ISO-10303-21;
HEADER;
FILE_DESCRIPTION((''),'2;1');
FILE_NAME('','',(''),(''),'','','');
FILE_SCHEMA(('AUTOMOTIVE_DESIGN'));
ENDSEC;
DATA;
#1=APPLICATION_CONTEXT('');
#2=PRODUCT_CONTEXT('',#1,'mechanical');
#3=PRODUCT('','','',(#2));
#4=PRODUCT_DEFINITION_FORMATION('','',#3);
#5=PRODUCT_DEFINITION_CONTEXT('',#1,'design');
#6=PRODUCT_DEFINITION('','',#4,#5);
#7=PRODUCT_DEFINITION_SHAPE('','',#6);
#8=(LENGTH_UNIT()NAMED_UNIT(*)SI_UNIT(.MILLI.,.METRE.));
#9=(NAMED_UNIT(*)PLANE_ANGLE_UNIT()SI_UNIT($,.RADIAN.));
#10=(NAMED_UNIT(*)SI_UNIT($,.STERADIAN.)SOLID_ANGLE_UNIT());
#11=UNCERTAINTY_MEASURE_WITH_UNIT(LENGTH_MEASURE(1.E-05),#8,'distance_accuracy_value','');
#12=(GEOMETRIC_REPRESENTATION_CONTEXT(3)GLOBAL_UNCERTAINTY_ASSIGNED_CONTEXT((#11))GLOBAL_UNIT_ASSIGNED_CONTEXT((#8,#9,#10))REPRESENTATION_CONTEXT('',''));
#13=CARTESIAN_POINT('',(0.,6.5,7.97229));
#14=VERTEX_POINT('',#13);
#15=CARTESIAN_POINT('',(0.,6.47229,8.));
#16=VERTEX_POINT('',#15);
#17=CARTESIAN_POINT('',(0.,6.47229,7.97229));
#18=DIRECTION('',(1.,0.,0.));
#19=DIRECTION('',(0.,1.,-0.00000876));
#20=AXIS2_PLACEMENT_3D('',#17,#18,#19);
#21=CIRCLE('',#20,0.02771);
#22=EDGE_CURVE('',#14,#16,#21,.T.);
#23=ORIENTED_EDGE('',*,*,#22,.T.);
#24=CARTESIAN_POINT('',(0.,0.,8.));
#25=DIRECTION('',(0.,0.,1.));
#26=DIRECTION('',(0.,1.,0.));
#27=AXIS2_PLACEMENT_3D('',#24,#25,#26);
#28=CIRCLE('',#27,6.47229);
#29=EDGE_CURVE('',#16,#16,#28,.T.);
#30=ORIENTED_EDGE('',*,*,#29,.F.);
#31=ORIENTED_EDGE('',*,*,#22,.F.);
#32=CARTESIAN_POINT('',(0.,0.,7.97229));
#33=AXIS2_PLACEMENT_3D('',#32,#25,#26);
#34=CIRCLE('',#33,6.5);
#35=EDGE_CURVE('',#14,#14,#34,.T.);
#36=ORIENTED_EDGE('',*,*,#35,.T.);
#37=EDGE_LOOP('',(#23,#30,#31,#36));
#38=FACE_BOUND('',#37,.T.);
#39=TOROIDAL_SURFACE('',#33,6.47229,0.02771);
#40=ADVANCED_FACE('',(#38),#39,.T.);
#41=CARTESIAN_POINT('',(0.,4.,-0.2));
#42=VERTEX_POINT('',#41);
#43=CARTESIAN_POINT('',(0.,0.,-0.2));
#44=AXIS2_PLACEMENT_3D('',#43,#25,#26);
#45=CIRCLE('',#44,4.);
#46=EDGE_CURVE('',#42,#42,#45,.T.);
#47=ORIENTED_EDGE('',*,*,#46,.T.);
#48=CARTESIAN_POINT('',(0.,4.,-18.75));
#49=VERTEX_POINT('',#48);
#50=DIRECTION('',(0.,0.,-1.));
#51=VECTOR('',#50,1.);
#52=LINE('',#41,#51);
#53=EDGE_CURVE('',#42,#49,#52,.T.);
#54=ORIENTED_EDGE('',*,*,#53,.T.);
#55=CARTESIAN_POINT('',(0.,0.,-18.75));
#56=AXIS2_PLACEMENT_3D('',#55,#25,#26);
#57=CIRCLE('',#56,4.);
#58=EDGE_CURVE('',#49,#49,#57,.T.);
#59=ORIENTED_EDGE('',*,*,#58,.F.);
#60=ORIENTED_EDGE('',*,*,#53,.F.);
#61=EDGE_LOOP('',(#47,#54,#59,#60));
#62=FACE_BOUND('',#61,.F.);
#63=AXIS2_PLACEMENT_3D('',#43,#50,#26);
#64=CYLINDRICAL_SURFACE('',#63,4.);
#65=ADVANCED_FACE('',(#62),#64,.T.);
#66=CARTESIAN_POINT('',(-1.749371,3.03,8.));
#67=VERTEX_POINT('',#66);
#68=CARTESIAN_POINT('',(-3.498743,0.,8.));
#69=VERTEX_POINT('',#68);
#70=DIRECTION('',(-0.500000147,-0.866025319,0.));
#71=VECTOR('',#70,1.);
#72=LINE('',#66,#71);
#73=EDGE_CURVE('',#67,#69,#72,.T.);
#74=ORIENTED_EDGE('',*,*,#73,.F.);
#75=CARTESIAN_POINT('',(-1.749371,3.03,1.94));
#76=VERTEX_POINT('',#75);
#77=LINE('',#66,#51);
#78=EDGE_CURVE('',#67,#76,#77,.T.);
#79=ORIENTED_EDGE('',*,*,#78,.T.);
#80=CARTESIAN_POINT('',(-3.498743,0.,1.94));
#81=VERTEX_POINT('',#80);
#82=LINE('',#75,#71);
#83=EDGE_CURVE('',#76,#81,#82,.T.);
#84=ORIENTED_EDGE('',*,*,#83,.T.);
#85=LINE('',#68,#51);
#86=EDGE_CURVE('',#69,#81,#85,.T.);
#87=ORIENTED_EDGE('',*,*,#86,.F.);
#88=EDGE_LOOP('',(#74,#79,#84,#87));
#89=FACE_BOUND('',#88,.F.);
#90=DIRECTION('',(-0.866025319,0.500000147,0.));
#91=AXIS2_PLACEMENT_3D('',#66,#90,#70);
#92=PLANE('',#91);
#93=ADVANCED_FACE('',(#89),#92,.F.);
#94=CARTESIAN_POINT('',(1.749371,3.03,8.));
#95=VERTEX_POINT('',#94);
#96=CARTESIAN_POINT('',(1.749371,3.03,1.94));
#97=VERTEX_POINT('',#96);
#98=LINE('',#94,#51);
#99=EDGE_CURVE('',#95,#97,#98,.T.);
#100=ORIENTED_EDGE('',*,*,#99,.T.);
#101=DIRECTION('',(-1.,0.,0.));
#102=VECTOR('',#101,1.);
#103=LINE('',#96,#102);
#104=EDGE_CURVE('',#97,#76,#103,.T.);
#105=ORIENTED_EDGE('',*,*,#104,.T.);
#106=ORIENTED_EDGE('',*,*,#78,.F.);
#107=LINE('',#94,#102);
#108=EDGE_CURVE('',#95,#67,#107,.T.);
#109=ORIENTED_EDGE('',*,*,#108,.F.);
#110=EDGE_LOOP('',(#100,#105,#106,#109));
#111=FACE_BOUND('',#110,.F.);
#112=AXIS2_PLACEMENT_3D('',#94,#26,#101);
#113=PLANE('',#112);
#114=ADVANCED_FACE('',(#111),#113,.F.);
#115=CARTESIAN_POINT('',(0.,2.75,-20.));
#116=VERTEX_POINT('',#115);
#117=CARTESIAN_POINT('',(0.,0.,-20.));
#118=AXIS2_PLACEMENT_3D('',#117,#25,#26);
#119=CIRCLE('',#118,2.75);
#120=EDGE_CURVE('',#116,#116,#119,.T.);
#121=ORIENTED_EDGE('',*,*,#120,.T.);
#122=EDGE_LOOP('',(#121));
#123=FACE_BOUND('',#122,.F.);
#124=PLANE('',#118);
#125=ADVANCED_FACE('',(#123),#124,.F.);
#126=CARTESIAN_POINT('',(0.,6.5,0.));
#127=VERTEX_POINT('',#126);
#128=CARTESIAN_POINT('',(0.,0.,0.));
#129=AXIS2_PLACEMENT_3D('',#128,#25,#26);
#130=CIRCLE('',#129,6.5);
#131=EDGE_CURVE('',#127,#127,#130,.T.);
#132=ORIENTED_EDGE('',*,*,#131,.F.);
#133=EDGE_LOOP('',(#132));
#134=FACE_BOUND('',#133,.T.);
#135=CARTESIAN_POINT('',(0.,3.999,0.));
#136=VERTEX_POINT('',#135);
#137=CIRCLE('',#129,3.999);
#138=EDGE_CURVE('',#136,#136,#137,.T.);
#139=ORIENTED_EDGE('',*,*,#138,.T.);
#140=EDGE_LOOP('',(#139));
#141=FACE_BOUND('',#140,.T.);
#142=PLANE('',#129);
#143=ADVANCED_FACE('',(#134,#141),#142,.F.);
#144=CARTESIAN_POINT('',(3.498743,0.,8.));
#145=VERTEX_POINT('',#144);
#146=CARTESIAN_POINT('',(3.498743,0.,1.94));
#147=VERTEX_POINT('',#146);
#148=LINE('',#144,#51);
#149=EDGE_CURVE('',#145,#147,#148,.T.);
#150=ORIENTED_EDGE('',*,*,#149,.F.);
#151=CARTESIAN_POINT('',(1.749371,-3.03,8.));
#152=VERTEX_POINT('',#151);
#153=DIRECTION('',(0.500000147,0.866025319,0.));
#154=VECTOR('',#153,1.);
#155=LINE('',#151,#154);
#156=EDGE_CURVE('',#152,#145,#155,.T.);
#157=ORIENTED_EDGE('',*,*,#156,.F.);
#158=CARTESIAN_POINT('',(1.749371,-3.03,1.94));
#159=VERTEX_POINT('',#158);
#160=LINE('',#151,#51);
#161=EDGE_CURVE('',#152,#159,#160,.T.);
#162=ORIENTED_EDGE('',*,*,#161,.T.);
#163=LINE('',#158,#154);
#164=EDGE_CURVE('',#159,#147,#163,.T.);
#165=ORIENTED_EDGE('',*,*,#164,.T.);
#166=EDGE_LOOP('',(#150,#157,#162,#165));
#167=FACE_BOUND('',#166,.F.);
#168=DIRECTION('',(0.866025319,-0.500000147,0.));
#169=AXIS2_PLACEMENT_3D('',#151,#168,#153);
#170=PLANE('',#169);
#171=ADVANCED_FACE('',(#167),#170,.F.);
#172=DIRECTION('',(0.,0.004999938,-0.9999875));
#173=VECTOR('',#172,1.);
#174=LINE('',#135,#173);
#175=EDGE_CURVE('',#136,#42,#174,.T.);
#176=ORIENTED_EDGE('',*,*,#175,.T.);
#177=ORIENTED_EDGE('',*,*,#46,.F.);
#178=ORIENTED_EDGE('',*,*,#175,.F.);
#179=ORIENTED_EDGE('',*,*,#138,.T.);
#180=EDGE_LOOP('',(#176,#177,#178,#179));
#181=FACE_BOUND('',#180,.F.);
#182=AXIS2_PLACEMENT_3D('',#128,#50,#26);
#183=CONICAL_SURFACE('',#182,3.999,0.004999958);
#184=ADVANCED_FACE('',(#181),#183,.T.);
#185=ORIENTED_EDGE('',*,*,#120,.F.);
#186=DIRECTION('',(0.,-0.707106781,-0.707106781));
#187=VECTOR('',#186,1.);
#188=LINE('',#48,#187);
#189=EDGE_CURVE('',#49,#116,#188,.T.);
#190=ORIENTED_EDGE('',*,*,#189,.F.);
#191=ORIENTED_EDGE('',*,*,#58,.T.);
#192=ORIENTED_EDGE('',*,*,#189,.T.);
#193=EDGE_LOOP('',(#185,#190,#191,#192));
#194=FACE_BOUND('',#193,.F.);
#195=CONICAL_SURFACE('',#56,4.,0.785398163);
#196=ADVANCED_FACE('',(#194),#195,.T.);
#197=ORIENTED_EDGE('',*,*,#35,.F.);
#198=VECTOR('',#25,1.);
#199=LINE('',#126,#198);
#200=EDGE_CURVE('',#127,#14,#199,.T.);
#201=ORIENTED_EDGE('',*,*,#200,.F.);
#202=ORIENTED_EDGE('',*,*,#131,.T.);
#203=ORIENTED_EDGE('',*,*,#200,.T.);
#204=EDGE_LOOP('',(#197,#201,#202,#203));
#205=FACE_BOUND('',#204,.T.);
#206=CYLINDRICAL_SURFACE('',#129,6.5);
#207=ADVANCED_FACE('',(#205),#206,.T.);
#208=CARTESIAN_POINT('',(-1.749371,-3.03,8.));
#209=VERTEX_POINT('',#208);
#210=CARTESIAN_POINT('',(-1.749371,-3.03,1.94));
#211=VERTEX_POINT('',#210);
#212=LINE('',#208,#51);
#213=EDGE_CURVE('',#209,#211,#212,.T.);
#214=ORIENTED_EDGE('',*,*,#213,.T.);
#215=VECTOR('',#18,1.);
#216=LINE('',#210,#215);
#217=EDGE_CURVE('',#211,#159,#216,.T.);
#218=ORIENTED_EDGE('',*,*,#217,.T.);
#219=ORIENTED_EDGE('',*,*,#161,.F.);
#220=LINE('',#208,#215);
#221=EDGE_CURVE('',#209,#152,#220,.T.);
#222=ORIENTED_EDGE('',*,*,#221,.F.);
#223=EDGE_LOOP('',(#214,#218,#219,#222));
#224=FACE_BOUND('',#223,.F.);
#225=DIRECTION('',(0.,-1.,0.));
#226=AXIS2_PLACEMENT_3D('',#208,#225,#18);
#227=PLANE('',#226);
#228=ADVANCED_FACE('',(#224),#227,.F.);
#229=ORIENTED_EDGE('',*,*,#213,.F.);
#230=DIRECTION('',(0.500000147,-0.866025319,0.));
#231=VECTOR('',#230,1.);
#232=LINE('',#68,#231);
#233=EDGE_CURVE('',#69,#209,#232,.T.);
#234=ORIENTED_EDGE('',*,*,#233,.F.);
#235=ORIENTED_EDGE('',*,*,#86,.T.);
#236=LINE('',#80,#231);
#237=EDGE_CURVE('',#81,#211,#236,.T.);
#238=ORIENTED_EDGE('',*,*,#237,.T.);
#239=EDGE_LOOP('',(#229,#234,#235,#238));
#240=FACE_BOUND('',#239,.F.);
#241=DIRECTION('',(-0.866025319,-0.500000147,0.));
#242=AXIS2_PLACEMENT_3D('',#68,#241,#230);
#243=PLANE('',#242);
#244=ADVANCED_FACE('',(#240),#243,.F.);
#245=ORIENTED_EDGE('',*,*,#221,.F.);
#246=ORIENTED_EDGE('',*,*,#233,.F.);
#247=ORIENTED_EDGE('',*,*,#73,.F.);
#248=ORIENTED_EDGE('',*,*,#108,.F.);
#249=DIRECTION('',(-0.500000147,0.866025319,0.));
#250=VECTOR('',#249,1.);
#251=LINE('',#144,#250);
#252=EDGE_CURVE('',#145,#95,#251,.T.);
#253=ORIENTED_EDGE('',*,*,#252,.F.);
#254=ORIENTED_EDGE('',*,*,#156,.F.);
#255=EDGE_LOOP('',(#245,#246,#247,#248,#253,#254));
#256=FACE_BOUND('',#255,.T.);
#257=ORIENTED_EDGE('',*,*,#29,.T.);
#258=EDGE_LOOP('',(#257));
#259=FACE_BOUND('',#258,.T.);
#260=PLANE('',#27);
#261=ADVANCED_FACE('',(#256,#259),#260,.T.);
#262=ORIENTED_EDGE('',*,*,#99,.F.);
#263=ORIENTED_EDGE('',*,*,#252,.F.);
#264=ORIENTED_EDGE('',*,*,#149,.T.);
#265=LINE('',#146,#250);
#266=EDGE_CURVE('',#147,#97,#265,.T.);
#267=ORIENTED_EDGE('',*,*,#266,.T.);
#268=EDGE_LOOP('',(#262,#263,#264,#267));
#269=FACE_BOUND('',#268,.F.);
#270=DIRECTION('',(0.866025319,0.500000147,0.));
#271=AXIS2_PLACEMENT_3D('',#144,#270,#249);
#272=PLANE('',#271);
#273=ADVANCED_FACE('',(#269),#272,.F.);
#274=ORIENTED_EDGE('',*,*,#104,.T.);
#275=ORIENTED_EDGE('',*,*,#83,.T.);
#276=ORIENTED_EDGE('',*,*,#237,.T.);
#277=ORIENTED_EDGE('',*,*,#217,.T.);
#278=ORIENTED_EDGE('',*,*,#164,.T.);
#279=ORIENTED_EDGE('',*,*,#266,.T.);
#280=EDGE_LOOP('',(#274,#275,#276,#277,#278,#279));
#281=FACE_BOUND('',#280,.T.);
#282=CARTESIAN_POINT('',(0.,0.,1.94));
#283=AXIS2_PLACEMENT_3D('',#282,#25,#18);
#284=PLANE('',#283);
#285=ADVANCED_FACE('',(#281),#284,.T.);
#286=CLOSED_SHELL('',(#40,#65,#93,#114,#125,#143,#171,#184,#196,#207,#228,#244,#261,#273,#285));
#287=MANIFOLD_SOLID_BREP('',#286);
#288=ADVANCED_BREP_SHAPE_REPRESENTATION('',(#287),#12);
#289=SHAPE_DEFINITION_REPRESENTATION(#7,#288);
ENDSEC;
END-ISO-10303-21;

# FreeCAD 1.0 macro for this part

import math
import FreeCAD as App
import Part
import Sketcher

V = App.Vector
Q = App.Units.Quantity


def add_polygon(sketch, points):
    """Adds a closed chain of lines whose ends are joined by coincident constraints."""
    first, n = sketch.GeometryCount, len(points)
    for a, b in zip(points, points[1:] + points[:1]):
        sketch.addGeometry(Part.LineSegment(App.Vector(*a, 0), App.Vector(*b, 0)), False)
    for i in range(n):
        sketch.addConstraint(Sketcher.Constraint("Coincident", first + i, 2, first + (i + 1) % n, 1))

doc = App.newDocument("Part")
body = doc.addObject("PartDesign::Body", "Body")

sketch1 = doc.addObject("Sketcher::SketchObject", "Sketch")
body.addObject(sketch1)
sketch1.AttachmentSupport = (doc.YZ_Plane, [""])
sketch1.MapMode = "FlatFace"
sketch1.addGeometry([
    Part.LineSegment(V(3.999, 0, 0), V(6.5, 0, 0)),
    Part.LineSegment(V(6.5, 0, 0), V(6.5, 7.972, 0)),
    Part.ArcOfCircle(Part.Circle(V(6.472, 7.972, 0), V(0, 0, 1), 0.028), math.radians(0), math.radians(90)),
    Part.LineSegment(V(6.472, 8, 0), V(0, 8, 0)),
    Part.LineSegment(V(0, 8, 0), V(0, -20, 0)),
    Part.LineSegment(V(0, -20, 0), V(2.75, -20, 0)),
    Part.LineSegment(V(2.75, -20, 0), V(4, -18.75, 0)),
    Part.LineSegment(V(4, -18.75, 0), V(4, -0.2, 0)),
    Part.LineSegment(V(4, -0.2, 0), V(3.999, 0, 0)),
], False)
sketch1.addConstraint([
    Sketcher.Constraint("Coincident", 0, 2, 1, 1),
    Sketcher.Constraint("Coincident", 1, 2, 2, 1),
    Sketcher.Constraint("Coincident", 2, 2, 3, 1),
    Sketcher.Constraint("Coincident", 3, 2, 4, 1),
    Sketcher.Constraint("Coincident", 4, 2, 5, 1),
    Sketcher.Constraint("Coincident", 5, 2, 6, 1),
    Sketcher.Constraint("Coincident", 6, 2, 7, 1),
    Sketcher.Constraint("Coincident", 7, 2, 8, 1),
    Sketcher.Constraint("Coincident", 8, 2, 0, 1),
    Sketcher.Constraint("Horizontal", 0),
    Sketcher.Constraint("Vertical", 1),
    Sketcher.Constraint("Horizontal", 3),
    Sketcher.Constraint("Vertical", 4),
    Sketcher.Constraint("Horizontal", 5),
    Sketcher.Constraint("Vertical", 7),
    Sketcher.Constraint("PointOnObject", 0, 2, -1),
    Sketcher.Constraint("PointOnObject", 3, 2, -2),
    Sketcher.Constraint("Horizontal", 2, 3, 1, 2),
    Sketcher.Constraint("DistanceY", 4, 2, 4, 1, Q("28 mm")),
    Sketcher.Constraint("Angle", 6, Q("45 deg")),
    Sketcher.Constraint("DistanceY", -1, 1, 2, 2, Q("8 mm")),
    Sketcher.Constraint("DistanceX", -1, 1, 6, 2, Q("4 mm")),
    Sketcher.Constraint("DistanceX", 5, 1, 5, 2, Q("2.75 mm")),
    Sketcher.Constraint("DistanceY", 7, 1, 7, 2, Q("18.55 mm")),
    Sketcher.Constraint("DistanceX", -1, 1, 0, 2, Q("6.5 mm")),
    Sketcher.Constraint("DistanceX", 0, 1, 0, 2, Q("2.501 mm")),
    Sketcher.Constraint("Radius", 2, Q("0.02771 mm")),
    Sketcher.Constraint("DistanceX", 3, 2, 3, 1, Q("6.47229 mm")),
])
revolution = doc.addObject("PartDesign::Revolution", "Revolution")
body.addObject(revolution)
revolution.Profile = sketch1
revolution.ReferenceAxis = (sketch1, ["V_Axis"])
revolution.Angle = 360

sketch2 = doc.addObject("Sketcher::SketchObject", "Sketch001")
body.addObject(sketch2)
sketch2.AttachmentSupport = (doc.XY_Plane, [""])
sketch2.MapMode = "FlatFace"
sketch2.AttachmentOffset = App.Placement(V(0, 0, 8), App.Rotation())
add_polygon(sketch2, [(3.5, 0), (1.7, 3), (-1.7, 3), (-3.5, 0), (-1.7, -3), (1.7, -3)])
sketch2.addConstraint([
    Sketcher.Constraint("Horizontal", 1),
    Sketcher.Constraint("Horizontal", 4),
    Sketcher.Constraint("Symmetric", 0, 2, 3, 2, -1, 1),
    Sketcher.Constraint("Symmetric", 2, 2, 5, 2, -1, 1),
    Sketcher.Constraint("PointOnObject", 2, 2, -1),
    Sketcher.Constraint("Parallel", 2, 5),
    Sketcher.Constraint("Vertical", 1, 2, 3, 2),
    Sketcher.Constraint("Angle", 0, Q("120.00001 deg")),
    Sketcher.Constraint("DistanceY", -1, 1, 0, 2, Q("3.03 mm")),
    Sketcher.Constraint("DistanceX", 1, 2, 1, 1, Q("3.498742 mm")),
])
pocket1 = doc.addObject("PartDesign::Pocket", "Pocket")
body.addObject(pocket1)
pocket1.Profile = sketch2
pocket1.Length = 6.06

doc.recompute()
